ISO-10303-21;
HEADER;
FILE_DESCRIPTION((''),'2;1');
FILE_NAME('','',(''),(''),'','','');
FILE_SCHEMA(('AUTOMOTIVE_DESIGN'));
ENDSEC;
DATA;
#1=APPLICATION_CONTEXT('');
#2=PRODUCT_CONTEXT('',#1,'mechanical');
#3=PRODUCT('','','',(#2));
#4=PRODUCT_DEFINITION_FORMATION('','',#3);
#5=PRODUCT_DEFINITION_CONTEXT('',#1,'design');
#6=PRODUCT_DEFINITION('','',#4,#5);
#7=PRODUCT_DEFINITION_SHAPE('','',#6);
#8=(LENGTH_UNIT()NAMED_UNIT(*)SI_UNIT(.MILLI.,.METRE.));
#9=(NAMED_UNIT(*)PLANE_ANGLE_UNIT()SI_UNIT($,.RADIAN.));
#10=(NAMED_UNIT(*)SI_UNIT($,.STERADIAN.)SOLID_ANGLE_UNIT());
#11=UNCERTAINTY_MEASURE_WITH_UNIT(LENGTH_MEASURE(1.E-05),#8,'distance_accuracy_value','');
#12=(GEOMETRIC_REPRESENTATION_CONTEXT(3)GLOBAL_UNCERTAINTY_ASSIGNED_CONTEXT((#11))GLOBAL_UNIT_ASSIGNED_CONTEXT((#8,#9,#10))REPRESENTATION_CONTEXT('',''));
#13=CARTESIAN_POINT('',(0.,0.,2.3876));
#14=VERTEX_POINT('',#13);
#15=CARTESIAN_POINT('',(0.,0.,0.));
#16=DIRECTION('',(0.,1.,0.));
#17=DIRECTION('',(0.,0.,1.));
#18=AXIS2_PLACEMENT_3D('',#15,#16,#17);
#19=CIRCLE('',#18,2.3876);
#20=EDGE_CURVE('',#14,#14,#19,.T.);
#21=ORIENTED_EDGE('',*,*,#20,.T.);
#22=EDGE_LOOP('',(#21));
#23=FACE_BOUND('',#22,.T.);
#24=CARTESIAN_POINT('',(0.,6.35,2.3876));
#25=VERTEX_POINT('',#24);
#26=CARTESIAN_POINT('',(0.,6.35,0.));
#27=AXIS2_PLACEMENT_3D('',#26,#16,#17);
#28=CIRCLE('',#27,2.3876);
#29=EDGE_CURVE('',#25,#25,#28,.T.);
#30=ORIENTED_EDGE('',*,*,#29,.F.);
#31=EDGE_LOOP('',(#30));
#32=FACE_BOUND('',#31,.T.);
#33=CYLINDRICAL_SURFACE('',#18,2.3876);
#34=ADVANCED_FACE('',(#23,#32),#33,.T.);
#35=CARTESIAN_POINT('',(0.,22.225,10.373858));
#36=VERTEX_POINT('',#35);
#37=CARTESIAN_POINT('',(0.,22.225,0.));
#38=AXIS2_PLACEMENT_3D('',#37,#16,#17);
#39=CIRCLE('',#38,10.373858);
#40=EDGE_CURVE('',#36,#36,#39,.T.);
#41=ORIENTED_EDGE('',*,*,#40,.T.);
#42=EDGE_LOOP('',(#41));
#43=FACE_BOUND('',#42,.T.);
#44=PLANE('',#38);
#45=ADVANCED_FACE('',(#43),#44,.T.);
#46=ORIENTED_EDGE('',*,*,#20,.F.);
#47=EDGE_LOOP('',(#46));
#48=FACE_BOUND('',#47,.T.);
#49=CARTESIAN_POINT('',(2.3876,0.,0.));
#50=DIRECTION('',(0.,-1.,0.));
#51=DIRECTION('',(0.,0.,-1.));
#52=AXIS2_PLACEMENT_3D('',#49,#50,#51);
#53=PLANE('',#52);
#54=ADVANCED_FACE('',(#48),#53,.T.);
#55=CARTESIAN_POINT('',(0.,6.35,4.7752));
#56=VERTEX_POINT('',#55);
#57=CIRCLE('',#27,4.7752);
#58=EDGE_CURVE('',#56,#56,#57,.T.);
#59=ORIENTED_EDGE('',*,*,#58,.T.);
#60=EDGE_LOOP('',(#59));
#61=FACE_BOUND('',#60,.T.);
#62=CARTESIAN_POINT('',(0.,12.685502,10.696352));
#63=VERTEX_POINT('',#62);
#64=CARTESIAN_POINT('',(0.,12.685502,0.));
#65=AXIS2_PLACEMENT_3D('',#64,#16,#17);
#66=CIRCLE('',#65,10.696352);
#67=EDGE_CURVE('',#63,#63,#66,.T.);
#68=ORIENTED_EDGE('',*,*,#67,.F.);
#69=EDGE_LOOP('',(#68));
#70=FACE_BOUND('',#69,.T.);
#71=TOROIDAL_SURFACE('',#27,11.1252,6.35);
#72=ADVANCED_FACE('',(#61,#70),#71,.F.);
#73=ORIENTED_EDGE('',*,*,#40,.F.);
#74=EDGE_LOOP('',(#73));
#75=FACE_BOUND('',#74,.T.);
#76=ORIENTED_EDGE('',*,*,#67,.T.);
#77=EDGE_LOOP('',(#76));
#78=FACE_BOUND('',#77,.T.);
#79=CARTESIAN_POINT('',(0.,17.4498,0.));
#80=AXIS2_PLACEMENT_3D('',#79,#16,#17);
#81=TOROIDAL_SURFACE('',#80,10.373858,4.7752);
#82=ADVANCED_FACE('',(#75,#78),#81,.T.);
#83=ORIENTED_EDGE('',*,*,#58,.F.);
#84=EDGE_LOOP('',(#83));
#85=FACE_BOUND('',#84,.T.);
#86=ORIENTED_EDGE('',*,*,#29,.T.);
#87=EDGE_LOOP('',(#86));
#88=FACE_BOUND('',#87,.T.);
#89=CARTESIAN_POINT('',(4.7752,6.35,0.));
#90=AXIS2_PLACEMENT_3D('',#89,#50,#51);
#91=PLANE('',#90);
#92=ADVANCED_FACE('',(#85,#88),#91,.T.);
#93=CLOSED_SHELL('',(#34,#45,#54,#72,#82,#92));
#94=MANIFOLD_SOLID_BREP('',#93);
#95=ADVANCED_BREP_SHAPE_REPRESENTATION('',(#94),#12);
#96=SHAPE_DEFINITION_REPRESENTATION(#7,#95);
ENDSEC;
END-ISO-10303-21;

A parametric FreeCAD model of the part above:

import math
import FreeCAD as App
import Part
import Sketcher

V = App.Vector
Q = App.Units.Quantity

doc = App.newDocument("Part")
body = doc.addObject("PartDesign::Body", "Body")

# Sketch on XY plane
sketch1 = body.newObject("Sketcher::SketchObject", "Sketch")
sketch1.AttachmentSupport = (doc.getObject("XY_Plane"), [""])
sketch1.MapMode = "FlatFace"
sketch1.addGeometry([
    Part.LineSegment(V(2.3876, 0, 0), V(0, 0, 0)),  # 0
    Part.LineSegment(V(0, 0, 0), V(0, 22.225, 0)),  # 1
    Part.LineSegment(V(0, 22.225, 0), V(10.373858, 22.225, 0)),  # 2
    Part.ArcOfCircle(Part.Circle(V(10.373858, 17.4498, 0), V(0, 0, 1), 4.7752), math.radians(-86.127573), math.radians(90)),  # 3
    Part.ArcOfCircle(Part.Circle(V(11.1252, 6.35, 0), V(0, 0, 1), 6.35), math.radians(93.872427), math.radians(180)),  # 4
    Part.LineSegment(V(4.7752, 6.35, 0), V(2.3876, 6.35, 0)),  # 5
    Part.LineSegment(V(2.3876, 6.35, 0), V(2.3876, 0, 0)),  # 6
], False)
sketch1.addConstraint([
    Sketcher.Constraint("Coincident", 0, 2, 1, 1),
    Sketcher.Constraint("Coincident", 1, 2, 2, 1),
    Sketcher.Constraint("Tangent", 2, 2, 3, 2),
    Sketcher.Constraint("Tangent", 3, 1, 4, 1),
    Sketcher.Constraint("Coincident", 4, 2, 5, 1),
    Sketcher.Constraint("Coincident", 5, 2, 6, 1),
    Sketcher.Constraint("Coincident", 6, 2, 0, 1),
    Sketcher.Constraint("Horizontal", 0),
    Sketcher.Constraint("Vertical", 1),
    Sketcher.Constraint("Horizontal", 2),
    Sketcher.Constraint("Horizontal", 5),
    Sketcher.Constraint("Vertical", 6),
    Sketcher.Constraint("Coincident", 0, 2, -1, 1),
    Sketcher.Constraint("Equal", 0, 5),
    Sketcher.Constraint("Radius", 4, Q("0.25 in")),
    Sketcher.Constraint("Radius", 3, Q("0.188 in")),
    Sketcher.Constraint("DistanceY", 6, 2, 6, 1, Q("0.25 in")),
    Sketcher.Constraint("DistanceX", 0, 2, 0, 1, Q("0.094 in")),
    Sketcher.Constraint("DistanceY", 1, 1, 1, 2, Q("0.875 in")),
    Sketcher.Constraint("DistanceY", -1, 1, 4, 3, Q("0.25 in")),
])
revolution = body.newObject("PartDesign::Revolution", "Revolution")
revolution.Profile = sketch1
revolution.ReferenceAxis = (sketch1, ["V_Axis"])
revolution.Angle = 360

doc.recompute()
